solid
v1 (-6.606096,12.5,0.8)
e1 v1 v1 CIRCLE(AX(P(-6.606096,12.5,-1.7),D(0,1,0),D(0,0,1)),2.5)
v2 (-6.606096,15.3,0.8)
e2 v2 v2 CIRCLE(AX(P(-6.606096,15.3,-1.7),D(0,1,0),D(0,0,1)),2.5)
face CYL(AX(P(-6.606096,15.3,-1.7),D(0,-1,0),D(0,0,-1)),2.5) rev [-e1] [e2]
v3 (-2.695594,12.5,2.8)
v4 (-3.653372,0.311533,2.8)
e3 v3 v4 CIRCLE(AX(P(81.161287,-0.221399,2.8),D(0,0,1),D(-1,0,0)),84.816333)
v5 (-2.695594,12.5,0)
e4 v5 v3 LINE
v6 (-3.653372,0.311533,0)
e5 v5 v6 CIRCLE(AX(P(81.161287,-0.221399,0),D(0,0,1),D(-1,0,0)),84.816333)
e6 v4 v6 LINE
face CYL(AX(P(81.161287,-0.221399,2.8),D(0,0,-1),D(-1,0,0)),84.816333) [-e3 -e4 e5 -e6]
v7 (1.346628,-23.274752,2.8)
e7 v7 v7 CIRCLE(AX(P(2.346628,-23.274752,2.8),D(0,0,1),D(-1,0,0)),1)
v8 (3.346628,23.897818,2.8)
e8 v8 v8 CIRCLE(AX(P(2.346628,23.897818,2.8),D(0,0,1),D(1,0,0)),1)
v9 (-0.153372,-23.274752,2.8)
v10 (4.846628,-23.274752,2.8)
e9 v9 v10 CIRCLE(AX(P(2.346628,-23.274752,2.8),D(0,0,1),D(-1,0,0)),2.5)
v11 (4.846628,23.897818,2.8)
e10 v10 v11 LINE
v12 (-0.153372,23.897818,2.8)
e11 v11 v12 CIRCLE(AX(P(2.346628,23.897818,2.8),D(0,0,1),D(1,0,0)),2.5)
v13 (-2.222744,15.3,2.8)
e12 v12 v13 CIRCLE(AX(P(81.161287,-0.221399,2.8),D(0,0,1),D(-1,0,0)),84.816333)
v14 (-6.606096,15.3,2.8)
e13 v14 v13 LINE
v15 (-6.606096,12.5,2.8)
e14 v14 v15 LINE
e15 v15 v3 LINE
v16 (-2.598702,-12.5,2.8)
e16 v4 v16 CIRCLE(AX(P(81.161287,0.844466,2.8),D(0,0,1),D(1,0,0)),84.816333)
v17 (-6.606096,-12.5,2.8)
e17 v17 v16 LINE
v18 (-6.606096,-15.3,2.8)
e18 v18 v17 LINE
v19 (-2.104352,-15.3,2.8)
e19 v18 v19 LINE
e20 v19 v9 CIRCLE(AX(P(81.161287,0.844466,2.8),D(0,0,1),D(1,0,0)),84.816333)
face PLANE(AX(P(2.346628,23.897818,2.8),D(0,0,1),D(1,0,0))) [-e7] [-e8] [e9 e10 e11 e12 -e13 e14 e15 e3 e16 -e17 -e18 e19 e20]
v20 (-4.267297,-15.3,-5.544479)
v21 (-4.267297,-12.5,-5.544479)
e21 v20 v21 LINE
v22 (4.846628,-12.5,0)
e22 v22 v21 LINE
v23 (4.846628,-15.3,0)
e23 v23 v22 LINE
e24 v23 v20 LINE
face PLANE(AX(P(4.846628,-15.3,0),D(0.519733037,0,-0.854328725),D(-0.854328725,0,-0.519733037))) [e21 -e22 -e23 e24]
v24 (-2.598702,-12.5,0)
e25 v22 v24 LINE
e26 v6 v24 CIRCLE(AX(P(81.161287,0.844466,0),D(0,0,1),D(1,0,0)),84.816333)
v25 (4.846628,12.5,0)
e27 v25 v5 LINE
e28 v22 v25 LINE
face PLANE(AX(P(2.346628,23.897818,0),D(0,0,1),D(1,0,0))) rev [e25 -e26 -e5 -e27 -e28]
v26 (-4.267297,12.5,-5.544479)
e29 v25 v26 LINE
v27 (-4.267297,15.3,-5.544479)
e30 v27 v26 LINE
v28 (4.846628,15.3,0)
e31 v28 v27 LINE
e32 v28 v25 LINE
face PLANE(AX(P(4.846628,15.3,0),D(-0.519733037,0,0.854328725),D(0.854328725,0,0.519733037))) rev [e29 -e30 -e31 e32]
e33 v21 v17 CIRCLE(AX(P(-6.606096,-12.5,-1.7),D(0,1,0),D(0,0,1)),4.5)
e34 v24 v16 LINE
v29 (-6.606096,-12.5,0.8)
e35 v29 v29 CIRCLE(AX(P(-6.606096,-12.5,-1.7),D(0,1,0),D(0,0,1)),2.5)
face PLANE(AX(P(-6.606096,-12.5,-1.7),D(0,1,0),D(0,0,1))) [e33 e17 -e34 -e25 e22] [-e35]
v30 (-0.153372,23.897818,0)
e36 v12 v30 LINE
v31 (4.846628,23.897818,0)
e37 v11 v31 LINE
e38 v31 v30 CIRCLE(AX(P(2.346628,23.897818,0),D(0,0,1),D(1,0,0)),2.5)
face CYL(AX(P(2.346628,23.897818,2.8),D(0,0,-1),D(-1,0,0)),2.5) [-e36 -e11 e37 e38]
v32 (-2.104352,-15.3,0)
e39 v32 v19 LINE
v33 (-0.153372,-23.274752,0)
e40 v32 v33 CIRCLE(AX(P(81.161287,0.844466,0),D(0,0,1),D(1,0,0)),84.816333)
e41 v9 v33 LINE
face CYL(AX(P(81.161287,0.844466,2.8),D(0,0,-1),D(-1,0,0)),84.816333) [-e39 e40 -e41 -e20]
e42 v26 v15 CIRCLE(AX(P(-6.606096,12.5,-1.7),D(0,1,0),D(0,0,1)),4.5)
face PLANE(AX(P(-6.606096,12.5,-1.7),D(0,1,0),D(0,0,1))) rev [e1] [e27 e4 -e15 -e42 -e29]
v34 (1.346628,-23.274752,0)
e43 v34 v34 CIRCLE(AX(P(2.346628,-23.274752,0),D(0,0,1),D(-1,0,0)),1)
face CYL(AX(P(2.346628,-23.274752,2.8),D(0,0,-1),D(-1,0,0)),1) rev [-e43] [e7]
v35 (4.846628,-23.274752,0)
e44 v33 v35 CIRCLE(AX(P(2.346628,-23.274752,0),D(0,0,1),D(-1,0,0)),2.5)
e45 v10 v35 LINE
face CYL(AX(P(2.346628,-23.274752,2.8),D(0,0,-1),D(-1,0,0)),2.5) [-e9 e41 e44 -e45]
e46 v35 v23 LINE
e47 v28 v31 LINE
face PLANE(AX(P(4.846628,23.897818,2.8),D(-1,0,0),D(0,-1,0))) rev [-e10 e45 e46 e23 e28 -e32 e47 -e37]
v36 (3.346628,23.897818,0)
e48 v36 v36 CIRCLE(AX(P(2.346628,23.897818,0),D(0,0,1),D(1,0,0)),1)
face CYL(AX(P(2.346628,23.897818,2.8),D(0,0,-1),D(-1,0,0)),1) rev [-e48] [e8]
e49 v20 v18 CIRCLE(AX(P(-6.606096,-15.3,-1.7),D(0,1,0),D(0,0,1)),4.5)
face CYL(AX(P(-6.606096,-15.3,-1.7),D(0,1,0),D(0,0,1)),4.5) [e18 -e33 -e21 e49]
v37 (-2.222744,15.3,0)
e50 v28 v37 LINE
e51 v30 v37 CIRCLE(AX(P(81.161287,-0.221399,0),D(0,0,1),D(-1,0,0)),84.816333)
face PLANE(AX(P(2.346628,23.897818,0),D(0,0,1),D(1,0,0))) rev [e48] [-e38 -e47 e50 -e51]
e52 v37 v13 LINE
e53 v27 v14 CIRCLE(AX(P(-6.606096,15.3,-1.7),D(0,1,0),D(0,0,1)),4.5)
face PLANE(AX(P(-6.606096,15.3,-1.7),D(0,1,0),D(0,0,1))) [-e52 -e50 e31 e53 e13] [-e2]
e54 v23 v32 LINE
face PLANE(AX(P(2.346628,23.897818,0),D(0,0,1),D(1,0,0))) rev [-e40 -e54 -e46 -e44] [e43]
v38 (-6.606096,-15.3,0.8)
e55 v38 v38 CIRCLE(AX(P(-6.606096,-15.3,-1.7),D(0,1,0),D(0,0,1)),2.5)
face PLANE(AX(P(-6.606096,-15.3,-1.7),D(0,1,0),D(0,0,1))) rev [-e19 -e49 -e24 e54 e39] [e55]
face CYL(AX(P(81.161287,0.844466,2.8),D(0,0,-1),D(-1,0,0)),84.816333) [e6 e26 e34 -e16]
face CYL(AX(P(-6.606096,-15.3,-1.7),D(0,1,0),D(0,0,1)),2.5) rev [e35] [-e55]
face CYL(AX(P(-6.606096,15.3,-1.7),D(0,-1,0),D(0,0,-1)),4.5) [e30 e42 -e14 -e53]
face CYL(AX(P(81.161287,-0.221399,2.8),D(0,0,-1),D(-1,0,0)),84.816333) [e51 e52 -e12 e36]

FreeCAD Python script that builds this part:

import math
import FreeCAD as App
import Part
import Sketcher

V = App.Vector
Q = App.Units.Quantity

doc = App.newDocument("Part")
body = doc.addObject("PartDesign::Body", "Body")

sketch1 = body.newObject("Sketcher::SketchObject", "Sketch")
sketch1.AttachmentSupport = (doc.getObject("XY_Plane"), [""])
sketch1.MapMode = "FlatFace"
sketch1.addGeometry([
    Part.LineSegment(V(4.8, -23.3, 0), V(4.8, 23.9, 0)),
    Part.ArcOfCircle(Part.Circle(V(2.3, 23.9, 0), V(0, 0, 1), 2.5), math.radians(0), math.radians(180)),
    Part.ArcOfCircle(Part.Circle(V(81.2, -0.2, 0), V(0, 0, 1), 84.8), math.radians(163.48), math.radians(179.64)),
    Part.ArcOfCircle(Part.Circle(V(81.2, 0.8, 0), V(0, 0, 1), 84.8), math.radians(-179.64), math.radians(-163.48)),
    Part.ArcOfCircle(Part.Circle(V(2.3, -23.3, 0), V(0, 0, 1), 2.5), math.radians(180), math.radians(360)),
    Part.Circle(V(2.3, -23.3, 0), V(0, 0, 1), 1),
    Part.Circle(V(2.3, 23.9, 0), V(0, 0, 1), 1),
], False)
sketch1.addConstraint([
    Sketcher.Constraint("Tangent", 0, 2, 1, 1),
    Sketcher.Constraint("Coincident", 1, 2, 2, 1),
    Sketcher.Constraint("Coincident", 2, 2, 3, 1),
    Sketcher.Constraint("Coincident", 3, 2, 4, 1),
    Sketcher.Constraint("Tangent", 4, 2, 0, 1),
    Sketcher.Constraint("Vertical", 0),
    Sketcher.Constraint("Coincident", 5, 3, 4, 3),
    Sketcher.Constraint("Coincident", 6, 3, 1, 3),
    Sketcher.Constraint("Equal", 2, 3),
    Sketcher.Constraint("Equal", 1, 4),
    Sketcher.Constraint("Equal", 5, 6),
    Sketcher.Constraint("Horizontal", 0, 2, 1, 2),
    Sketcher.Constraint("Horizontal", 5, 3, 3, 2),
    Sketcher.Constraint("Vertical", 2, 3, 3, 3),
    Sketcher.Constraint("Diameter", 5, Q("2 mm")),
    Sketcher.Constraint("Radius", 1, Q("2.5 mm")),
    Sketcher.Constraint("DistanceX", 2, 2, 4, 3, Q("6 mm")),
    Sketcher.Constraint("Radius", 2, Q("84.816334 mm")),
    Sketcher.Constraint("DistanceY", 0, 1, 0, 2, Q("47.17257 mm")),
    Sketcher.Constraint("DistanceY", 2, 3, -1, 1, Q("0.221399 mm")),
    Sketcher.Constraint("DistanceX", -1, 1, 1, 3, Q("2.346628 mm")),
])
pad1 = body.newObject("PartDesign::Pad", "Pad")
pad1.Profile = sketch1
pad1.Length = 2.8

sketch2 = body.newObject("Sketcher::SketchObject", "Sketch001")
sketch2.AttachmentSupport = (doc.getObject("XZ_Plane"), [""])
sketch2.MapMode = "FlatFace"
sketch2.AttachmentOffset = App.Placement(V(0, 0, -12.5), App.Rotation())
sketch2.addGeometry([
    Part.LineSegment(V(4.8, 0, 0), V(-4.3, -5.5, 0)),
    Part.ArcOfCircle(Part.Circle(V(-6.6, -1.7, 0), V(0, 0, 1), 4.5), math.radians(90), math.radians(301)),
    Part.LineSegment(V(-6.6, 2.8, 0), V(4.8, 2.8, 0)),
    Part.LineSegment(V(4.8, 2.8, 0), V(4.8, 0, 0)),
    Part.Circle(V(-6.6, -1.7, 0), V(0, 0, 1), 2.5),
], False)
sketch2.addConstraint([
    Sketcher.Constraint("Tangent", 0, 2, 1, 2),
    Sketcher.Constraint("Tangent", 1, 1, 2, 1),
    Sketcher.Constraint("Coincident", 2, 2, 3, 1),
    Sketcher.Constraint("Coincident", 3, 2, 0, 1),
    Sketcher.Constraint("Horizontal", 2),
    Sketcher.Constraint("Vertical", 3),
    Sketcher.Constraint("Coincident", 4, 3, 1, 3),
    Sketcher.Constraint("PointOnObject", 3, 2, -1),
    Sketcher.Constraint("Diameter", 4, Q("5 mm")),
    Sketcher.Constraint("Radius", 1, Q("4.5 mm")),
    Sketcher.Constraint("DistanceY", 3, 2, 3, 1, Q("2.8 mm")),
    Sketcher.Constraint("DistanceX", 1, 3, 0, 2, Q("2.338799 mm")),
    Sketcher.Constraint("DistanceX", 1, 3, -1, 1, Q("6.606096 mm")),
])
pad2 = body.newObject("PartDesign::Pad", "Pad001")
pad2.Profile = sketch2
pad2.Length = 2.8
pad2.Reversed = True

sketch3 = body.newObject("Sketcher::SketchObject", "Sketch002")
sketch3.AttachmentSupport = (doc.getObject("XZ_Plane"), [""])
sketch3.MapMode = "FlatFace"
sketch3.AttachmentOffset = App.Placement(V(0, 0, 15.3), App.Rotation())
sketch3.addGeometry([
    Part.LineSegment(V(4.8, 0, 0), V(-4.3, -5.5, 0)),
    Part.ArcOfCircle(Part.Circle(V(-6.6, -1.7, 0), V(0, 0, 1), 4.5), math.radians(90), math.radians(301)),
    Part.LineSegment(V(-6.6, 2.8, 0), V(4.8, 2.8, 0)),
    Part.LineSegment(V(4.8, 2.8, 0), V(4.8, 0, 0)),
    Part.Circle(V(-6.6, -1.7, 0), V(0, 0, 1), 2.5),
], False)
sketch3.addConstraint([
    Sketcher.Constraint("Tangent", 0, 2, 1, 2),
    Sketcher.Constraint("Tangent", 1, 1, 2, 1),
    Sketcher.Constraint("Coincident", 2, 2, 3, 1),
    Sketcher.Constraint("Coincident", 3, 2, 0, 1),
    Sketcher.Constraint("Horizontal", 2),
    Sketcher.Constraint("Vertical", 3),
    Sketcher.Constraint("Coincident", 4, 3, 1, 3),
    Sketcher.Constraint("PointOnObject", 3, 2, -1),
    Sketcher.Constraint("Diameter", 4, Q("5 mm")),
    Sketcher.Constraint("Radius", 1, Q("4.5 mm")),
    Sketcher.Constraint("DistanceY", 3, 2, 3, 1, Q("2.8 mm")),
    Sketcher.Constraint("DistanceX", 1, 3, 0, 2, Q("2.338799 mm")),
    Sketcher.Constraint("DistanceX", 1, 3, -1, 1, Q("6.606096 mm")),
])
pad3 = body.newObject("PartDesign::Pad", "Pad002")
pad3.Profile = sketch3
pad3.Length = 2.8
pad3.Reversed = True

doc.recompute()
